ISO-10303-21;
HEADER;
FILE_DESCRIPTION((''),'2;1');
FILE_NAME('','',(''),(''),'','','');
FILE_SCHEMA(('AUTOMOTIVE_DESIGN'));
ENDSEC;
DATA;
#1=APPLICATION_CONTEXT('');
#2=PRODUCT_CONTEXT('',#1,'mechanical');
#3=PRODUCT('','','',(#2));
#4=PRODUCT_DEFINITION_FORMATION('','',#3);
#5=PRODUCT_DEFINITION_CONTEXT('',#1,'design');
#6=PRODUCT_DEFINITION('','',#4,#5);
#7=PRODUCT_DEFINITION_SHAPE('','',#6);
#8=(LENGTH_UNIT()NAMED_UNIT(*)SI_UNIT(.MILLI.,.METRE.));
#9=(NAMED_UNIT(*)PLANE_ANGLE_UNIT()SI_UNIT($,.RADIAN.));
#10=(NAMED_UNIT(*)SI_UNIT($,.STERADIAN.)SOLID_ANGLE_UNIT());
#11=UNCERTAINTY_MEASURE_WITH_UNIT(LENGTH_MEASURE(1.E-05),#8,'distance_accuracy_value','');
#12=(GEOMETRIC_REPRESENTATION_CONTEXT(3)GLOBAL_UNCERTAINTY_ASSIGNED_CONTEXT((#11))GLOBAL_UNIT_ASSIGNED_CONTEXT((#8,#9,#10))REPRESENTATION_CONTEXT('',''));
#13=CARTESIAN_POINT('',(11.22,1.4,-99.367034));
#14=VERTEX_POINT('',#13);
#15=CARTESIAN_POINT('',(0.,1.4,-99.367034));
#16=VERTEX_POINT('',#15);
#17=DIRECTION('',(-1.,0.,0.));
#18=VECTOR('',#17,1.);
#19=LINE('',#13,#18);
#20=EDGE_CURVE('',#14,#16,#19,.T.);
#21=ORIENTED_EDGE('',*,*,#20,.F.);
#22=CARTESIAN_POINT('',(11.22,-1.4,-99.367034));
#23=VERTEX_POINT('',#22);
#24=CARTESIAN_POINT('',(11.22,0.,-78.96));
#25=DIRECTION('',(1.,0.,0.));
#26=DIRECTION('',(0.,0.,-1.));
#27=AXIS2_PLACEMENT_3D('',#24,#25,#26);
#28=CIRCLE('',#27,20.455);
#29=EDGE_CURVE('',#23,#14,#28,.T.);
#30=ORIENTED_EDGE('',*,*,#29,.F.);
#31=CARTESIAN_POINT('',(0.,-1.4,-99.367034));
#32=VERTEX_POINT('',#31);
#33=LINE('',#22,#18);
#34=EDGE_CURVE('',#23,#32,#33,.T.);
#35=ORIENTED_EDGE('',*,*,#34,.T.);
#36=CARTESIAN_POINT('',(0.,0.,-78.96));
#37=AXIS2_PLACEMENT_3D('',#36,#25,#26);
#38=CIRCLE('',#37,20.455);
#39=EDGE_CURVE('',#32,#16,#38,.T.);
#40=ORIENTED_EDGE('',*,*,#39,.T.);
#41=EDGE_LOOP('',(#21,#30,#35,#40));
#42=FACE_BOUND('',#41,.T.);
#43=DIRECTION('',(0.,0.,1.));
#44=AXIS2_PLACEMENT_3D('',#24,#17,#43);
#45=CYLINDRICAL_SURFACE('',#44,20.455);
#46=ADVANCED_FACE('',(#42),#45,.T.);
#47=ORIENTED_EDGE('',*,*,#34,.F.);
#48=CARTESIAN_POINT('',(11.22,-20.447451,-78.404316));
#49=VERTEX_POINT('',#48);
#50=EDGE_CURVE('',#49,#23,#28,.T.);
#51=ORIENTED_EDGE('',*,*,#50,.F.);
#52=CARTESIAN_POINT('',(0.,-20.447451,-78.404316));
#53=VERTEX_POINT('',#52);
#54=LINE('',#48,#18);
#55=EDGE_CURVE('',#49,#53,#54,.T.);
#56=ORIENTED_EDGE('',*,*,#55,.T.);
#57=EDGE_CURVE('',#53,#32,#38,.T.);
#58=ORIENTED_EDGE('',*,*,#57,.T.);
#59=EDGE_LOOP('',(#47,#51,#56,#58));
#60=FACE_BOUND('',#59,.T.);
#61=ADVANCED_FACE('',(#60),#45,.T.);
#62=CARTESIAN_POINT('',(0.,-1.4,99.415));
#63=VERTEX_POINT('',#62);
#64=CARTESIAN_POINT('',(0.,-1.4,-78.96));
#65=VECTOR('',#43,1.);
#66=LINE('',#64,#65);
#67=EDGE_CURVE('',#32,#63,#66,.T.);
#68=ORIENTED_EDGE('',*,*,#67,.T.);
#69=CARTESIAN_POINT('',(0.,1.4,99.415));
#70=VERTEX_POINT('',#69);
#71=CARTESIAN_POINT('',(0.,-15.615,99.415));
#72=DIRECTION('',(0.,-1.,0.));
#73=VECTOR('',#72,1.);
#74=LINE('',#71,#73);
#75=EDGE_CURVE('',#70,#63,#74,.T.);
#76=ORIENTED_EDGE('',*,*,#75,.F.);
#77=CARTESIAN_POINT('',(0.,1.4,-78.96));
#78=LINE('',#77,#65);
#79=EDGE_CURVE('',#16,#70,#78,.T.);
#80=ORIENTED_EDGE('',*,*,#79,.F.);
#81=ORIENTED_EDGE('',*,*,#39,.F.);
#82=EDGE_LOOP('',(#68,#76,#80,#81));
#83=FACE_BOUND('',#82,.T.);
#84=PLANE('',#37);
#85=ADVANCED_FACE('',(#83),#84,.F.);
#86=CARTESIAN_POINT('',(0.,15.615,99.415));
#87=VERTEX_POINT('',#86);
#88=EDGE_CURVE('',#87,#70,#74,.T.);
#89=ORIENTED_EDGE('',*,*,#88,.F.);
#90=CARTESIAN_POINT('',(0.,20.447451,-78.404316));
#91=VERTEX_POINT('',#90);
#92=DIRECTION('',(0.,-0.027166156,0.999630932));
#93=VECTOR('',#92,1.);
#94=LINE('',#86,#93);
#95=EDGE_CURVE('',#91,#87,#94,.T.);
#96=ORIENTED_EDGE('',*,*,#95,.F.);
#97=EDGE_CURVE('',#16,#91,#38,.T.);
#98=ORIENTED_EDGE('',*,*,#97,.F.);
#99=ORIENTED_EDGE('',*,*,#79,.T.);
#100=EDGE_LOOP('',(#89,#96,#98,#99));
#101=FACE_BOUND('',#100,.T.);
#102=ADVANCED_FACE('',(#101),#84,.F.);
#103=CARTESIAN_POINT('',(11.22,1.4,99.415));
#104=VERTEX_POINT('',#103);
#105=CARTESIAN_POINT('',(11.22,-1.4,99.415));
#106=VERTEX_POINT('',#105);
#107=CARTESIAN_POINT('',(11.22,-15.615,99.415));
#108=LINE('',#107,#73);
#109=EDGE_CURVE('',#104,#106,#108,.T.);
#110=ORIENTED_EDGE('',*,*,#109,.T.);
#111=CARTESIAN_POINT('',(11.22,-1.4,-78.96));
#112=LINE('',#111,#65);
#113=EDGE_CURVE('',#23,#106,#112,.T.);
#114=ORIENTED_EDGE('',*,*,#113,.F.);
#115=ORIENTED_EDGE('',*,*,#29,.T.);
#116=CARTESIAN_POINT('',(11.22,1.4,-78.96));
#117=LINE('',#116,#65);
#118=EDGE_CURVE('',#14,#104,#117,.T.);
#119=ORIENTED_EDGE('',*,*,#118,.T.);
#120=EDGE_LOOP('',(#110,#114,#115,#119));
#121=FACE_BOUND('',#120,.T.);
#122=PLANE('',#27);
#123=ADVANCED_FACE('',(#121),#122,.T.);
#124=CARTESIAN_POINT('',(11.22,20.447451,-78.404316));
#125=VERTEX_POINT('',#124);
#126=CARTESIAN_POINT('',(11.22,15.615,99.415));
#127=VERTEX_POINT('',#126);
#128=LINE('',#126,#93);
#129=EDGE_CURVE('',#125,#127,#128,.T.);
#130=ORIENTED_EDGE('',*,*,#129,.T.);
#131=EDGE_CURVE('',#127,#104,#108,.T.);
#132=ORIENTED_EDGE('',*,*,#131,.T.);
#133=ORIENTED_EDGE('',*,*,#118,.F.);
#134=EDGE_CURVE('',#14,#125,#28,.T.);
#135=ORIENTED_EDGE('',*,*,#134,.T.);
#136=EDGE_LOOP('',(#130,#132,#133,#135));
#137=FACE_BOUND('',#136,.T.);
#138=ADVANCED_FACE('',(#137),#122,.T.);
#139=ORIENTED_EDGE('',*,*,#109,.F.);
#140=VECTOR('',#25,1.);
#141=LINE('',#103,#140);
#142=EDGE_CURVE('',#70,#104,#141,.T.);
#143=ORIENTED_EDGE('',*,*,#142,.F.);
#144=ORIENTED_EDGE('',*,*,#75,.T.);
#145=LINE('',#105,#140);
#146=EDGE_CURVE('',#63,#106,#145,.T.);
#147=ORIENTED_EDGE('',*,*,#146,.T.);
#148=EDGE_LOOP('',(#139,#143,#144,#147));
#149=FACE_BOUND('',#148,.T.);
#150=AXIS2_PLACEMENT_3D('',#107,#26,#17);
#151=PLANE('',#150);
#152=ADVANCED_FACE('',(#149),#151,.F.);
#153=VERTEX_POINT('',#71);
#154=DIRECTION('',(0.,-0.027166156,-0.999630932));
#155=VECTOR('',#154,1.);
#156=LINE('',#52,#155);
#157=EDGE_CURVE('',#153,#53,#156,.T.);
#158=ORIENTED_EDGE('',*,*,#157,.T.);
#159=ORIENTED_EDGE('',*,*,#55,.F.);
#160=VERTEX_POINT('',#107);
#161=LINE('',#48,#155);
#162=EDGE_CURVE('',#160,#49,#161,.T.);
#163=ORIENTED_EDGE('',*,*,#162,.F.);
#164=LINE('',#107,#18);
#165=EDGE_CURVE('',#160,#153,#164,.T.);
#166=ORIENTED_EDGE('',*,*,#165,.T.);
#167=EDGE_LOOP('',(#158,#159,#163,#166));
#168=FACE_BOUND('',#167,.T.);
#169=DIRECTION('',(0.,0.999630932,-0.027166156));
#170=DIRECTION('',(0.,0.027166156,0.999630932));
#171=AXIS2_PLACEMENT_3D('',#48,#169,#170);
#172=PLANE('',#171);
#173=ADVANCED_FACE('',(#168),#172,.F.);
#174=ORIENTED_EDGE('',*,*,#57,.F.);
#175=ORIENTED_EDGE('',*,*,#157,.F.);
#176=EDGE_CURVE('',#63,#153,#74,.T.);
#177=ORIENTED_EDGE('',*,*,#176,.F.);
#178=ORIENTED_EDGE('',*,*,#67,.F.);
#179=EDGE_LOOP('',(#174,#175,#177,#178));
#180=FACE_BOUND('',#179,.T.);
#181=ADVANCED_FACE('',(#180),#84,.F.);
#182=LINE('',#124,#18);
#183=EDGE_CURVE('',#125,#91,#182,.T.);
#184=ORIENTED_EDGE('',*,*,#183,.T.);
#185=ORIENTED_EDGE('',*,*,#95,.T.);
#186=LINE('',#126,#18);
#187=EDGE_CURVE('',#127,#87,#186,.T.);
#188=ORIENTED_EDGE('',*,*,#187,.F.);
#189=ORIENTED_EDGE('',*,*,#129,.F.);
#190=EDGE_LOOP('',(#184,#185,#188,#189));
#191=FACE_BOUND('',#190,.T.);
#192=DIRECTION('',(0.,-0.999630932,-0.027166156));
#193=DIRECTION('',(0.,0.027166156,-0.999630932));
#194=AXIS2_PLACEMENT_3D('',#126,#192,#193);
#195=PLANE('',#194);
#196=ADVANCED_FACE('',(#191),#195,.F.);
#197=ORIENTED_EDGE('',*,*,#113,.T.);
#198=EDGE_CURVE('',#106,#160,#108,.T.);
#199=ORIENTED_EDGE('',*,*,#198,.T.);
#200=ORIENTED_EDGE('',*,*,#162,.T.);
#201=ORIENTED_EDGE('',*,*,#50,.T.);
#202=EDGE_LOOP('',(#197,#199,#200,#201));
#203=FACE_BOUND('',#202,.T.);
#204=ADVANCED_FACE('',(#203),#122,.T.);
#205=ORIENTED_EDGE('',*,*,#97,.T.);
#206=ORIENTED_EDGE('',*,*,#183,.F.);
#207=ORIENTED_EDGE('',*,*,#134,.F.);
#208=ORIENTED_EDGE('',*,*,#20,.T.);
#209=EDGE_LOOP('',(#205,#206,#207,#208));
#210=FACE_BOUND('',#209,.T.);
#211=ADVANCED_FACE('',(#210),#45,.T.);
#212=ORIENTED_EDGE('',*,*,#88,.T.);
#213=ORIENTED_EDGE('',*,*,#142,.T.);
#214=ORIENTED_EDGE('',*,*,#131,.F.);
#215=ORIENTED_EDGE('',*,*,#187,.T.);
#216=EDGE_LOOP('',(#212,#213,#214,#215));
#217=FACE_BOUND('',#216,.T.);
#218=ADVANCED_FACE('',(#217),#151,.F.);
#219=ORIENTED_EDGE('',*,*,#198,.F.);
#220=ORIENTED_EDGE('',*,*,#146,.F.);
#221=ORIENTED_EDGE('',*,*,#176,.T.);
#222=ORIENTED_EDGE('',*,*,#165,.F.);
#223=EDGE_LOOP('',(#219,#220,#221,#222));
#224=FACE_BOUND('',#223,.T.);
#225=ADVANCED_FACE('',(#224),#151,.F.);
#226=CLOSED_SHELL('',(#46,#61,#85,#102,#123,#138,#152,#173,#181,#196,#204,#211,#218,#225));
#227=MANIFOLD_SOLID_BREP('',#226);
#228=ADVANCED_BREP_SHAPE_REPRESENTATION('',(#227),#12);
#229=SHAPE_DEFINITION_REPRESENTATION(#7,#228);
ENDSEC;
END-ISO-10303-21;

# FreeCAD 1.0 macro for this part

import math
import FreeCAD as App
import Part
import Sketcher
from FreeCAD import Vector
Q = App.Units.Quantity

doc = App.newDocument("Part")
body = doc.addObject("PartDesign::Body", "Body")

# Sketch on YZ plane
sketch1 = doc.addObject("Sketcher::SketchObject", "Sketch")
body.addObject(sketch1)
sketch1.AttachmentSupport = (doc.YZ_Plane, [""])
sketch1.MapMode = "FlatFace"
sketch1.addGeometry(Part.LineSegment(Vector(15.615, 99.415, 0), Vector(-15.615, 99.415, 0)), False)
sketch1.addGeometry(Part.LineSegment(Vector(-15.615, 99.415, 0), Vector(-20.447451, -78.404316, 0)), False)
sketch1.addGeometry(Part.ArcOfCircle(Part.Circle(Vector(0, -78.96, 0), Vector(0, 0, 1), 20.455), math.radians(178.443302), math.radians(361.556698)), False)
sketch1.addGeometry(Part.LineSegment(Vector(20.447451, -78.404316, 0), Vector(15.615, 99.415, 0)), False)
sketch1.addConstraint(Sketcher.Constraint("Coincident", 0, 2, 1, 1))
sketch1.addConstraint(Sketcher.Constraint("Tangent", 1, 2, 2, 1))
sketch1.addConstraint(Sketcher.Constraint("Tangent", 2, 2, 3, 1))
sketch1.addConstraint(Sketcher.Constraint("Coincident", 3, 2, 0, 1))
sketch1.addConstraint(Sketcher.Constraint("Horizontal", 0))
sketch1.addConstraint(Sketcher.Constraint("Symmetric", 1, 2, 2, 2, -2))
sketch1.addConstraint(Sketcher.Constraint("Radius", 2, Q("20.455 mm")))
sketch1.addConstraint(Sketcher.Constraint("DistanceX", 0, 2, 0, 1, Q("31.23 mm")))
sketch1.addConstraint(Sketcher.Constraint("DistanceY", 2, 3, -1, 1, Q("78.96 mm")))
sketch1.addConstraint(Sketcher.Constraint("DistanceY", -1, 1, 0, 2, Q("99.415 mm")))
pad1 = doc.addObject("PartDesign::Pad", "Pad")
body.addObject(pad1)
pad1.Profile = sketch1
pad1.Length = 11.22

doc.recompute()
